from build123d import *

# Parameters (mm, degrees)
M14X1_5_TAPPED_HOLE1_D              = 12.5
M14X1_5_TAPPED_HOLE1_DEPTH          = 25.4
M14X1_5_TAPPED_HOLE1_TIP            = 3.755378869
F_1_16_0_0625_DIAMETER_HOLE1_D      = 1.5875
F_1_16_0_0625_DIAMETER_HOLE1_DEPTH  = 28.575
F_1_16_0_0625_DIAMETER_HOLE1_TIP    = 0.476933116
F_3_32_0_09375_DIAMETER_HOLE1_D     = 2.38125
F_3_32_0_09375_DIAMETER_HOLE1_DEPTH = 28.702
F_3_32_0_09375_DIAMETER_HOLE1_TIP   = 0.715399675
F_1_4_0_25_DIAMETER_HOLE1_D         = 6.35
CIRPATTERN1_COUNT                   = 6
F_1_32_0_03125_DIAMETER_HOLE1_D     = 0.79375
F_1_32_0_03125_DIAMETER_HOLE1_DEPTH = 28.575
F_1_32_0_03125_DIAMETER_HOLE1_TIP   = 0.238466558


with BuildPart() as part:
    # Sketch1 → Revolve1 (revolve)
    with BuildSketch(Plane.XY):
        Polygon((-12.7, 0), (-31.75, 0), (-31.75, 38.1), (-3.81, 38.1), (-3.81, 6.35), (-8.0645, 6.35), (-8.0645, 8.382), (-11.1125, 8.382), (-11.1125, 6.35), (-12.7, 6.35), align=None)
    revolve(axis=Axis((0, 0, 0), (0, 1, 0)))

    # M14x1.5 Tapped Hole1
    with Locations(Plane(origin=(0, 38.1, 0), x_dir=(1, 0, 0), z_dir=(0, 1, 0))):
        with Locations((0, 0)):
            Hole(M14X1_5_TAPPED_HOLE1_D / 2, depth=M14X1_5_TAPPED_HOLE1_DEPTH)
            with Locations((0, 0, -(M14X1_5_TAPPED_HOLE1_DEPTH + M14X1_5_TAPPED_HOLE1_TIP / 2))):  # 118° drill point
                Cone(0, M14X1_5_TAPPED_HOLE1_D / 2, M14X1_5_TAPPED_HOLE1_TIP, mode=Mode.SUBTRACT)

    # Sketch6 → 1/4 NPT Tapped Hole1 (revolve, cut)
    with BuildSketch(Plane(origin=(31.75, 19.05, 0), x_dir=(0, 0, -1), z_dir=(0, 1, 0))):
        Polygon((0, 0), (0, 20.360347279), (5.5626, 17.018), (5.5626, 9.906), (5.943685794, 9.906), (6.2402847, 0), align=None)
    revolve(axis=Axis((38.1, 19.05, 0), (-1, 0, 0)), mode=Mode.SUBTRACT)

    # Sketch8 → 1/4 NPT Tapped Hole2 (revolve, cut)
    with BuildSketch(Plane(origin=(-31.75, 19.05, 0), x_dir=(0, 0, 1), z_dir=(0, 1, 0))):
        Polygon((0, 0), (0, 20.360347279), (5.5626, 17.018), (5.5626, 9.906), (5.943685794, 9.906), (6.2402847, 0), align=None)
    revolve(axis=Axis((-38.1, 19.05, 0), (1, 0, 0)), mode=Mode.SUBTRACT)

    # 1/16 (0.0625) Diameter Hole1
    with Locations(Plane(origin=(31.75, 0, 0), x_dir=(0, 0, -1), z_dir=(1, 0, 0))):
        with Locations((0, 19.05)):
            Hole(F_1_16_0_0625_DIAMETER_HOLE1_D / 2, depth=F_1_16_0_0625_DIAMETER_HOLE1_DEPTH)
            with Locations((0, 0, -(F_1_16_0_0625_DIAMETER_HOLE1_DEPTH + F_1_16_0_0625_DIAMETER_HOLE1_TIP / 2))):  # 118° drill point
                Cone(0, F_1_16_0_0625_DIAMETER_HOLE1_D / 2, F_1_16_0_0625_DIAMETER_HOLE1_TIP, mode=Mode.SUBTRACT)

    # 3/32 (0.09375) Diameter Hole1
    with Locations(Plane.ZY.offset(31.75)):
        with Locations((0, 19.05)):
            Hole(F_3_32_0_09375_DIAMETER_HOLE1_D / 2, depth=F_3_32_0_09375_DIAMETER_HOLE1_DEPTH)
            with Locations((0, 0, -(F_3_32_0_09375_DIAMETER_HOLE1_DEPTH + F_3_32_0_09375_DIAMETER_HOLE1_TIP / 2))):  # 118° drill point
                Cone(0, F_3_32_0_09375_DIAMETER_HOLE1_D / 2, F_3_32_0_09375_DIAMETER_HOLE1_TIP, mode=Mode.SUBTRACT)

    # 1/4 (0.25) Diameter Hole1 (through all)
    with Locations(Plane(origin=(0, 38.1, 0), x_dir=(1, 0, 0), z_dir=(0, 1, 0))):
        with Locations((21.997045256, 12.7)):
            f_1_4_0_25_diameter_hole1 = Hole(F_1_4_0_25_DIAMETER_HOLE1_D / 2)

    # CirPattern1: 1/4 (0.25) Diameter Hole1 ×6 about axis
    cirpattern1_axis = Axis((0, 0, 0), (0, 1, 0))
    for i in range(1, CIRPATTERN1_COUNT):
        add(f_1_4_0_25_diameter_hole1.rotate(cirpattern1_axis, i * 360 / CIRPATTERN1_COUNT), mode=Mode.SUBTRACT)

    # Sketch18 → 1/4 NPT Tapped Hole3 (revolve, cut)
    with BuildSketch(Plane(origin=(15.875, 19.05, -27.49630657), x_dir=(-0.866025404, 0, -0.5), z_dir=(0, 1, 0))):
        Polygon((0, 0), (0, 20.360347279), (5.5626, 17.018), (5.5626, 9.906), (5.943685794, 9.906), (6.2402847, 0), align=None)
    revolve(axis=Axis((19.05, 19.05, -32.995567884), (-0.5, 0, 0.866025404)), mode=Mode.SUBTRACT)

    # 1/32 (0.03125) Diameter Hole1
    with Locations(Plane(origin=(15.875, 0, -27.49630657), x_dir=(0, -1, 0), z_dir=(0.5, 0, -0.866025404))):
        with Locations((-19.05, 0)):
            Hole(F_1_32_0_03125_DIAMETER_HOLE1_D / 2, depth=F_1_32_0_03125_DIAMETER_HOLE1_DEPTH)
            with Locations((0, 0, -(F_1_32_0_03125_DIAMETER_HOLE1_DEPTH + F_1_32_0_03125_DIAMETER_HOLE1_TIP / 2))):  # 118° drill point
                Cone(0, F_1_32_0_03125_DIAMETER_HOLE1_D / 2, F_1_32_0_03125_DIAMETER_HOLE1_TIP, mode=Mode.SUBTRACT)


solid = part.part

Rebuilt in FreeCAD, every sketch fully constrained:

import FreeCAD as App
import Part
import Sketcher
from FreeCAD import Vector
Q = App.Units.Quantity

doc = App.newDocument("Part")
body = doc.addObject("PartDesign::Body", "Body")

sketch1 = body.newObject("Sketcher::SketchObject", "Sketch")
sketch1.AttachmentSupport = (doc.getObject("XY_Plane"), [""])
sketch1.MapMode = "FlatFace"
sketch1.addGeometry([
    Part.LineSegment(Vector(-31.8, 0, 0), Vector(-12.7, 0, 0)),
    Part.LineSegment(Vector(-12.7, 0, 0), Vector(-12.7, 6.3, 0)),
    Part.LineSegment(Vector(-12.7, 6.3, 0), Vector(-11.1, 6.3, 0)),
    Part.LineSegment(Vector(-11.1, 6.3, 0), Vector(-11.1, 8.4, 0)),
    Part.LineSegment(Vector(-11.1, 8.4, 0), Vector(-8.1, 8.4, 0)),
    Part.LineSegment(Vector(-8.1, 8.4, 0), Vector(-8.1, 6.3, 0)),
    Part.LineSegment(Vector(-8.1, 6.3, 0), Vector(-3.8, 6.3, 0)),
    Part.LineSegment(Vector(-3.8, 6.3, 0), Vector(-3.8, 38.1, 0)),
    Part.LineSegment(Vector(-3.8, 38.1, 0), Vector(-31.8, 38.1, 0)),
    Part.LineSegment(Vector(-31.8, 38.1, 0), Vector(-31.8, 0, 0)),
], False)
sketch1.addConstraint([
    Sketcher.Constraint("Coincident", 0, 2, 1, 1),
    Sketcher.Constraint("Coincident", 1, 2, 2, 1),
    Sketcher.Constraint("Coincident", 2, 2, 3, 1),
    Sketcher.Constraint("Coincident", 3, 2, 4, 1),
    Sketcher.Constraint("Coincident", 4, 2, 5, 1),
    Sketcher.Constraint("Coincident", 5, 2, 6, 1),
    Sketcher.Constraint("Coincident", 6, 2, 7, 1),
    Sketcher.Constraint("Coincident", 7, 2, 8, 1),
    Sketcher.Constraint("Coincident", 8, 2, 9, 1),
    Sketcher.Constraint("Coincident", 9, 2, 0, 1),
    Sketcher.Constraint("Horizontal", 0),
    Sketcher.Constraint("Vertical", 1),
    Sketcher.Constraint("Horizontal", 2),
    Sketcher.Constraint("Vertical", 3),
    Sketcher.Constraint("Horizontal", 4),
    Sketcher.Constraint("Vertical", 5),
    Sketcher.Constraint("Horizontal", 6),
    Sketcher.Constraint("Vertical", 7),
    Sketcher.Constraint("Horizontal", 8),
    Sketcher.Constraint("Vertical", 9),
    Sketcher.Constraint("PointOnObject", 0, 2, -1),
    Sketcher.Constraint("Horizontal", 2, 2, 5, 2),
    Sketcher.Constraint("DistanceX", 8, 2, 8, 1, Q("1.1 in")),
    Sketcher.Constraint("DistanceY", 9, 2, 9, 1, Q("1.5 in")),
    Sketcher.Constraint("DistanceX", 0, 1, 0, 2, Q("0.75 in")),
    Sketcher.Constraint("DistanceX", 4, 1, 4, 2, Q("0.12 in")),
    Sketcher.Constraint("DistanceY", 1, 1, 1, 2, Q("0.25 in")),
    Sketcher.Constraint("DistanceY", 3, 1, 3, 2, Q("0.08 in")),
    Sketcher.Constraint("DistanceX", 0, 2, -1, 1, Q("0.5 in")),
    Sketcher.Constraint("DistanceX", 2, 1, 2, 2, Q("0.0625 in")),
])
revolution = body.newObject("PartDesign::Revolution", "Revolution")
revolution.Profile = sketch1
revolution.ReferenceAxis = (sketch1, ["V_Axis"])
revolution.Angle = 360

sketch2 = body.newObject("Sketcher::SketchObject", "Sketch001")
sketch2.AttachmentSupport = (doc.getObject("XZ_Plane"), [""])
sketch2.MapMode = "FlatFace"
sketch2.AttachmentOffset = App.Placement(Vector(0, 0, -1.5 * 25.4), App.Rotation())
sketch2.addGeometry(Part.Circle(Vector(0, 0, 0), Vector(0, 0, 1), 6), False)
sketch2.addConstraint([
    Sketcher.Constraint("Coincident", 0, 3, -1, 1),
    Sketcher.Constraint("Diameter", 0, Q("12.5 mm")),
])
doc.recompute()
hole = body.newObject("PartDesign::Hole", "Hole")
hole.Profile = sketch2
hole.ThreadType = "None"
hole.Diameter = 12.5
hole.DepthType = "Dimension"
hole.Depth = Q("1 in")
hole.DrillPoint = "Angled"
hole.DrillPointAngle = 118
hole.Reversed = True

sketch3 = body.newObject("Sketcher::SketchObject", "Sketch002")
sketch3.AttachmentSupport = (doc.getObject("XZ_Plane"), [""])
sketch3.MapMode = "FlatFace"
sketch3.AttachmentOffset = App.Placement(Vector(0, 0, -0.75 * 25.4), App.Rotation())
sketch3.addGeometry([
    Part.LineSegment(Vector(11.39, 0, 0), Vector(31.75, 0, 0)),
    Part.LineSegment(Vector(31.75, 0, 0), Vector(31.75, -6.24, 0)),
    Part.LineSegment(Vector(31.75, -6.24, 0), Vector(21.84, -5.94, 0)),
    Part.LineSegment(Vector(21.84, -5.94, 0), Vector(21.84, -5.56, 0)),
    Part.LineSegment(Vector(21.84, -5.56, 0), Vector(14.73, -5.56, 0)),
    Part.LineSegment(Vector(14.73, -5.56, 0), Vector(11.39, 0, 0)),
], False)
sketch3.addConstraint([
    Sketcher.Constraint("Coincident", 0, 2, 1, 1),
    Sketcher.Constraint("Coincident", 1, 2, 2, 1),
    Sketcher.Constraint("Coincident", 2, 2, 3, 1),
    Sketcher.Constraint("Coincident", 3, 2, 4, 1),
    Sketcher.Constraint("Coincident", 4, 2, 5, 1),
    Sketcher.Constraint("Coincident", 5, 2, 0, 1),
    Sketcher.Constraint("Horizontal", 0),
    Sketcher.Constraint("Vertical", 1),
    Sketcher.Constraint("Vertical", 3),
    Sketcher.Constraint("Horizontal", 4),
    Sketcher.Constraint("PointOnObject", 0, 2, -1),
    Sketcher.Constraint("Angle", 5, Q("121 deg")),
    Sketcher.Constraint("DistanceX", 4, 2, 4, 1, Q("0.28 in")),
    Sketcher.Constraint("DistanceX", -1, 1, 0, 2, Q("1.25 in")),
    Sketcher.Constraint("DistanceX", -1, 1, 2, 2, Q("0.86 in")),
    Sketcher.Constraint("DistanceY", 3, 2, -1, 1, Q("0.219 in")),
    Sketcher.Constraint("DistanceY", 1, 2, 2, 2, Q("0.296599 mm")),
    Sketcher.Constraint("DistanceY", 1, 2, 1, 1, Q("6.240285 mm")),
])
groove = body.newObject("PartDesign::Groove", "Groove")
groove.Profile = sketch3
groove.ReferenceAxis = (sketch3, ["H_Axis"])
groove.Angle = 360

sketch4 = body.newObject("Sketcher::SketchObject", "Sketch003")
sketch4.AttachmentSupport = (doc.getObject("XZ_Plane"), [""])
sketch4.MapMode = "FlatFace"
sketch4.AttachmentOffset = App.Placement(Vector(0, 0, -0.75 * 25.4), App.Rotation())
sketch4.addGeometry([
    Part.LineSegment(Vector(-11.39, 0, 0), Vector(-31.75, 0, 0)),
    Part.LineSegment(Vector(-31.75, 0, 0), Vector(-31.75, 6.24, 0)),
    Part.LineSegment(Vector(-31.75, 6.24, 0), Vector(-21.84, 5.94, 0)),
    Part.LineSegment(Vector(-21.84, 5.94, 0), Vector(-21.84, 5.56, 0)),
    Part.LineSegment(Vector(-21.84, 5.56, 0), Vector(-14.73, 5.56, 0)),
    Part.LineSegment(Vector(-14.73, 5.56, 0), Vector(-11.39, 0, 0)),
], False)
sketch4.addConstraint([
    Sketcher.Constraint("Coincident", 0, 2, 1, 1),
    Sketcher.Constraint("Coincident", 1, 2, 2, 1),
    Sketcher.Constraint("Coincident", 2, 2, 3, 1),
    Sketcher.Constraint("Coincident", 3, 2, 4, 1),
    Sketcher.Constraint("Coincident", 4, 2, 5, 1),
    Sketcher.Constraint("Coincident", 5, 2, 0, 1),
    Sketcher.Constraint("Horizontal", 0),
    Sketcher.Constraint("Vertical", 1),
    Sketcher.Constraint("Vertical", 3),
    Sketcher.Constraint("Horizontal", 4),
    Sketcher.Constraint("PointOnObject", 0, 2, -1),
    Sketcher.Constraint("Angle", 5, Q("-59 deg")),
    Sketcher.Constraint("DistanceX", 4, 1, 4, 2, Q("0.28 in")),
    Sketcher.Constraint("DistanceX", 0, 2, -1, 1, Q("1.25 in")),
    Sketcher.Constraint("DistanceX", 2, 2, -1, 1, Q("0.86 in")),
    Sketcher.Constraint("DistanceY", -1, 1, 3, 2, Q("0.219 in")),
    Sketcher.Constraint("DistanceY", 2, 2, 1, 2, Q("0.296599 mm")),
    Sketcher.Constraint("DistanceY", 1, 1, 1, 2, Q("6.240285 mm")),
])
groove2 = body.newObject("PartDesign::Groove", "Groove001")
groove2.Profile = sketch4
groove2.ReferenceAxis = (sketch4, ["H_Axis"])
groove2.Angle = 360

sketch5 = body.newObject("Sketcher::SketchObject", "Sketch004")
sketch5.AttachmentSupport = (doc.getObject("YZ_Plane"), [""])
sketch5.MapMode = "FlatFace"
sketch5.AttachmentOffset = App.Placement(Vector(0, 0, 1.25 * 25.4), App.Rotation())
sketch5.addGeometry(Part.Circle(Vector(19.1, 0, 0), Vector(0, 0, 1), 0.8), False)
sketch5.addConstraint([
    Sketcher.Constraint("PointOnObject", 0, 3, -1),
    Sketcher.Constraint("Diameter", 0, Q("0.0625 in")),
    Sketcher.Constraint("DistanceX", -1, 1, 0, 3, Q("0.75 in")),
])
doc.recompute()
hole2 = body.newObject("PartDesign::Hole", "Hole001")
hole2.Profile = sketch5
hole2.ThreadType = "None"
hole2.Diameter = Q("0.0625 in")
hole2.DepthType = "Dimension"
hole2.Depth = Q("1.125 in")
hole2.DrillPoint = "Angled"
hole2.DrillPointAngle = 118

sketch6 = body.newObject("Sketcher::SketchObject", "Sketch005")
sketch6.AttachmentSupport = (doc.getObject("YZ_Plane"), [""])
sketch6.MapMode = "FlatFace"
sketch6.AttachmentOffset = App.Placement(Vector(0, 0, -1.25 * 25.4), App.Rotation())
sketch6.addGeometry(Part.Circle(Vector(19.1, 0, 0), Vector(0, 0, 1), 1.2), False)
sketch6.addConstraint([
    Sketcher.Constraint("PointOnObject", 0, 3, -1),
    Sketcher.Constraint("Diameter", 0, Q("0.09375 in")),
    Sketcher.Constraint("DistanceX", -1, 1, 0, 3, Q("0.75 in")),
])
doc.recompute()
hole3 = body.newObject("PartDesign::Hole", "Hole002")
hole3.Profile = sketch6
hole3.ThreadType = "None"
hole3.Diameter = Q("0.09375 in")
hole3.DepthType = "Dimension"
hole3.Depth = Q("1.13 in")
hole3.DrillPoint = "Angled"
hole3.DrillPointAngle = 118
hole3.Reversed = True

sketch7 = body.newObject("Sketcher::SketchObject", "Sketch006")
sketch7.AttachmentSupport = (doc.getObject("XZ_Plane"), [""])
sketch7.MapMode = "FlatFace"
sketch7.AttachmentOffset = App.Placement(Vector(0, 0, -1.5 * 25.4), App.Rotation())
sketch7.addGeometry(Part.Circle(Vector(22, -12.7, 0), Vector(0, 0, 1), 3.2), False)
sketch7.addConstraint([
    Sketcher.Constraint("Diameter", 0, Q("0.25 in")),
    Sketcher.Constraint("DistanceY", 0, 3, -1, 1, Q("0.5 in")),
    Sketcher.Constraint("DistanceX", -1, 1, 0, 3, Q("21.997045 mm")),
])
doc.recompute()
hole4 = body.newObject("PartDesign::Hole", "Hole003")
hole4.Profile = sketch7
hole4.ThreadType = "None"
hole4.Diameter = Q("0.25 in")
hole4.DepthType = "ThroughAll"
hole4.Reversed = True
doc.recompute()

polarpattern = body.newObject("PartDesign::PolarPattern", "PolarPattern")
polarpattern.Originals = [hole4]
polarpattern.Axis = (doc.getObject("Y_Axis"), [""])
polarpattern.Angle = 360
polarpattern.Occurrences = 6
body.Tip = polarpattern

sketch8 = body.newObject("Sketcher::SketchObject", "Sketch007")
sketch8.AttachmentSupport = (doc.getObject("XZ_Plane"), [""])
sketch8.MapMode = "FlatFace"
sketch8.AttachmentOffset = App.Placement(Vector(0, 0, -0.75 * 25.4), App.Rotation())
sketch8.addGeometry([
    Part.LineSegment(Vector(5.69, -9.86, 0), Vector(15.88, -27.5, 0)),
    Part.LineSegment(Vector(15.88, -27.5, 0), Vector(10.47, -30.62, 0)),
    Part.LineSegment(Vector(10.47, -30.62, 0), Vector(5.77, -21.89, 0)),
    Part.LineSegment(Vector(5.77, -21.89, 0), Vector(6.1, -21.7, 0)),
    Part.LineSegment(Vector(6.1, -21.7, 0), Vector(2.55, -15.54, 0)),
    Part.LineSegment(Vector(2.55, -15.54, 0), Vector(5.69, -9.86, 0)),
], False)
sketch8.addGeometry(Part.LineSegment(Vector(15.88, -27.5, 0), Vector(5.69, -9.86, 0)), True)
sketch8.addConstraint([
    Sketcher.Constraint("Coincident", 0, 2, 1, 1),
    Sketcher.Constraint("Coincident", 1, 2, 2, 1),
    Sketcher.Constraint("Coincident", 2, 2, 3, 1),
    Sketcher.Constraint("Coincident", 3, 2, 4, 1),
    Sketcher.Constraint("Coincident", 4, 2, 5, 1),
    Sketcher.Constraint("Coincident", 5, 2, 0, 1),
    Sketcher.Constraint("Coincident", 6, 1, 0, 2),
    Sketcher.Constraint("Coincident", 6, 2, 5, 2),
    Sketcher.Constraint("Perpendicular", 0, 1),
    Sketcher.Constraint("Parallel", 1, 3),
    Sketcher.Constraint("Perpendicular", 3, 4),
    Sketcher.Constraint("Angle", 0, Q("-60 deg")),
    Sketcher.Constraint("Angle", 5, Q("61 deg")),
    Sketcher.Constraint("Distance", 4, Q("0.28 in")),
    Sketcher.Constraint("DistanceX", -1, 1, 0, 2, Q("0.625 in")),
    Sketcher.Constraint("DistanceY", 2, 2, -1, 1, Q("21.889302 mm")),
    Sketcher.Constraint("Distance", 2, Q("9.910439 mm")),
    Sketcher.Constraint("DistanceY", 1, 2, -1, 1, Q("30.616449 mm")),
    Sketcher.Constraint("DistanceY", 3, 2, -1, 1, Q("21.698759 mm")),
    Sketcher.Constraint("DistanceY", 5, 2, -1, 1, Q("9.863729 mm")),
])
groove3 = body.newObject("PartDesign::Groove", "Groove002")
groove3.Profile = sketch8
groove3.ReferenceAxis = (sketch8, ["Axis0"])
groove3.Angle = 360

sketch9 = body.newObject("Sketcher::SketchObject", "Sketch008")
sketch9.Placement = App.Placement(Vector(15.875, 0, -27.496307), App.Rotation(Vector(0, -1, 0), Vector(-0.866025404, 0, -0.5), Vector(0.5, 0, -0.866025404), "ZXY"))
sketch9.addGeometry(Part.Circle(Vector(-19.05, 0, 0), Vector(0, 0, 1), 0.4), False)
sketch9.addConstraint([
    Sketcher.Constraint("PointOnObject", 0, 3, -1),
    Sketcher.Constraint("Diameter", 0, Q("0.03125 in")),
    Sketcher.Constraint("DistanceX", 0, 3, -1, 1, Q("0.75 in")),
])
doc.recompute()
hole5 = body.newObject("PartDesign::Hole", "Hole004")
hole5.Profile = sketch9
hole5.ThreadType = "None"
hole5.Diameter = Q("0.03125 in")
hole5.DepthType = "Dimension"
hole5.Depth = Q("1.125 in")
hole5.DrillPoint = "Angled"
hole5.DrillPointAngle = 118

doc.recompute()
